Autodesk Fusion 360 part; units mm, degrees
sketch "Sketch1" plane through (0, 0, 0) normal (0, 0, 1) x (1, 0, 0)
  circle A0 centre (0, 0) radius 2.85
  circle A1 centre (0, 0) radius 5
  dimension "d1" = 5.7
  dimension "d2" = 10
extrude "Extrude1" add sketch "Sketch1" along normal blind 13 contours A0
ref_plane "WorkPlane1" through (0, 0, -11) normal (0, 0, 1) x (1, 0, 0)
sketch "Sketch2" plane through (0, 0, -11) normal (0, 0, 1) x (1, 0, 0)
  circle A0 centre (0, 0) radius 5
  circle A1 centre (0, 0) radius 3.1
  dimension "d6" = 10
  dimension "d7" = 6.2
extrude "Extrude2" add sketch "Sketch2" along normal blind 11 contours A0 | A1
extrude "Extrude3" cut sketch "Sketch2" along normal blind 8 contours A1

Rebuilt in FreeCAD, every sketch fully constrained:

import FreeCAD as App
import Part
import Sketcher
from FreeCAD import Vector

doc = App.newDocument("Part")
body = doc.addObject("PartDesign::Body", "Body")

# Sketch on XY plane
sketch1 = body.newObject("Sketcher::SketchObject", "Sketch")
sketch1.AttachmentSupport = (doc.getObject("XY_Plane"), [""])
sketch1.MapMode = "FlatFace"
sketch1.addGeometry(Part.Circle(Vector(0, 0, 0), Vector(0, 0, 1), 2.9), False)
sketch1.addConstraint([
    Sketcher.Constraint("Coincident", 0, 3, -1, 1),
    Sketcher.Constraint("Diameter", 0, 5.7),
])
pad1 = body.newObject("PartDesign::Pad", "Pad")
pad1.Profile = sketch1
pad1.Length = 13

# Sketch on XY plane
sketch2 = body.newObject("Sketcher::SketchObject", "Sketch001")
sketch2.AttachmentSupport = (doc.getObject("XY_Plane"), [""])
sketch2.MapMode = "FlatFace"
sketch2.AttachmentOffset = App.Placement(Vector(0, 0, -11), App.Rotation())
sketch2.addGeometry(Part.Circle(Vector(0, 0, 0), Vector(0, 0, 1), 5), False)
sketch2.addConstraint([
    Sketcher.Constraint("Coincident", 0, 3, -1, 1),
    Sketcher.Constraint("Diameter", 0, 10.0),
])
pad2 = body.newObject("PartDesign::Pad", "Pad001")
pad2.Profile = sketch2
pad2.Length = 11

# Sketch on XY plane
sketch3 = body.newObject("Sketcher::SketchObject", "Sketch002")
sketch3.AttachmentSupport = (doc.getObject("XY_Plane"), [""])
sketch3.MapMode = "FlatFace"
sketch3.AttachmentOffset = App.Placement(Vector(0, 0, -11), App.Rotation())
sketch3.addGeometry(Part.Circle(Vector(0, 0, 0), Vector(0, 0, 1), 3.1), False)
sketch3.addConstraint([
    Sketcher.Constraint("Coincident", 0, 3, -1, 1),
    Sketcher.Constraint("Diameter", 0, 6.2),
])
pocket1 = body.newObject("PartDesign::Pocket", "Pocket")
pocket1.Profile = sketch3
pocket1.Length = 8
pocket1.Reversed = True

doc.recompute()
